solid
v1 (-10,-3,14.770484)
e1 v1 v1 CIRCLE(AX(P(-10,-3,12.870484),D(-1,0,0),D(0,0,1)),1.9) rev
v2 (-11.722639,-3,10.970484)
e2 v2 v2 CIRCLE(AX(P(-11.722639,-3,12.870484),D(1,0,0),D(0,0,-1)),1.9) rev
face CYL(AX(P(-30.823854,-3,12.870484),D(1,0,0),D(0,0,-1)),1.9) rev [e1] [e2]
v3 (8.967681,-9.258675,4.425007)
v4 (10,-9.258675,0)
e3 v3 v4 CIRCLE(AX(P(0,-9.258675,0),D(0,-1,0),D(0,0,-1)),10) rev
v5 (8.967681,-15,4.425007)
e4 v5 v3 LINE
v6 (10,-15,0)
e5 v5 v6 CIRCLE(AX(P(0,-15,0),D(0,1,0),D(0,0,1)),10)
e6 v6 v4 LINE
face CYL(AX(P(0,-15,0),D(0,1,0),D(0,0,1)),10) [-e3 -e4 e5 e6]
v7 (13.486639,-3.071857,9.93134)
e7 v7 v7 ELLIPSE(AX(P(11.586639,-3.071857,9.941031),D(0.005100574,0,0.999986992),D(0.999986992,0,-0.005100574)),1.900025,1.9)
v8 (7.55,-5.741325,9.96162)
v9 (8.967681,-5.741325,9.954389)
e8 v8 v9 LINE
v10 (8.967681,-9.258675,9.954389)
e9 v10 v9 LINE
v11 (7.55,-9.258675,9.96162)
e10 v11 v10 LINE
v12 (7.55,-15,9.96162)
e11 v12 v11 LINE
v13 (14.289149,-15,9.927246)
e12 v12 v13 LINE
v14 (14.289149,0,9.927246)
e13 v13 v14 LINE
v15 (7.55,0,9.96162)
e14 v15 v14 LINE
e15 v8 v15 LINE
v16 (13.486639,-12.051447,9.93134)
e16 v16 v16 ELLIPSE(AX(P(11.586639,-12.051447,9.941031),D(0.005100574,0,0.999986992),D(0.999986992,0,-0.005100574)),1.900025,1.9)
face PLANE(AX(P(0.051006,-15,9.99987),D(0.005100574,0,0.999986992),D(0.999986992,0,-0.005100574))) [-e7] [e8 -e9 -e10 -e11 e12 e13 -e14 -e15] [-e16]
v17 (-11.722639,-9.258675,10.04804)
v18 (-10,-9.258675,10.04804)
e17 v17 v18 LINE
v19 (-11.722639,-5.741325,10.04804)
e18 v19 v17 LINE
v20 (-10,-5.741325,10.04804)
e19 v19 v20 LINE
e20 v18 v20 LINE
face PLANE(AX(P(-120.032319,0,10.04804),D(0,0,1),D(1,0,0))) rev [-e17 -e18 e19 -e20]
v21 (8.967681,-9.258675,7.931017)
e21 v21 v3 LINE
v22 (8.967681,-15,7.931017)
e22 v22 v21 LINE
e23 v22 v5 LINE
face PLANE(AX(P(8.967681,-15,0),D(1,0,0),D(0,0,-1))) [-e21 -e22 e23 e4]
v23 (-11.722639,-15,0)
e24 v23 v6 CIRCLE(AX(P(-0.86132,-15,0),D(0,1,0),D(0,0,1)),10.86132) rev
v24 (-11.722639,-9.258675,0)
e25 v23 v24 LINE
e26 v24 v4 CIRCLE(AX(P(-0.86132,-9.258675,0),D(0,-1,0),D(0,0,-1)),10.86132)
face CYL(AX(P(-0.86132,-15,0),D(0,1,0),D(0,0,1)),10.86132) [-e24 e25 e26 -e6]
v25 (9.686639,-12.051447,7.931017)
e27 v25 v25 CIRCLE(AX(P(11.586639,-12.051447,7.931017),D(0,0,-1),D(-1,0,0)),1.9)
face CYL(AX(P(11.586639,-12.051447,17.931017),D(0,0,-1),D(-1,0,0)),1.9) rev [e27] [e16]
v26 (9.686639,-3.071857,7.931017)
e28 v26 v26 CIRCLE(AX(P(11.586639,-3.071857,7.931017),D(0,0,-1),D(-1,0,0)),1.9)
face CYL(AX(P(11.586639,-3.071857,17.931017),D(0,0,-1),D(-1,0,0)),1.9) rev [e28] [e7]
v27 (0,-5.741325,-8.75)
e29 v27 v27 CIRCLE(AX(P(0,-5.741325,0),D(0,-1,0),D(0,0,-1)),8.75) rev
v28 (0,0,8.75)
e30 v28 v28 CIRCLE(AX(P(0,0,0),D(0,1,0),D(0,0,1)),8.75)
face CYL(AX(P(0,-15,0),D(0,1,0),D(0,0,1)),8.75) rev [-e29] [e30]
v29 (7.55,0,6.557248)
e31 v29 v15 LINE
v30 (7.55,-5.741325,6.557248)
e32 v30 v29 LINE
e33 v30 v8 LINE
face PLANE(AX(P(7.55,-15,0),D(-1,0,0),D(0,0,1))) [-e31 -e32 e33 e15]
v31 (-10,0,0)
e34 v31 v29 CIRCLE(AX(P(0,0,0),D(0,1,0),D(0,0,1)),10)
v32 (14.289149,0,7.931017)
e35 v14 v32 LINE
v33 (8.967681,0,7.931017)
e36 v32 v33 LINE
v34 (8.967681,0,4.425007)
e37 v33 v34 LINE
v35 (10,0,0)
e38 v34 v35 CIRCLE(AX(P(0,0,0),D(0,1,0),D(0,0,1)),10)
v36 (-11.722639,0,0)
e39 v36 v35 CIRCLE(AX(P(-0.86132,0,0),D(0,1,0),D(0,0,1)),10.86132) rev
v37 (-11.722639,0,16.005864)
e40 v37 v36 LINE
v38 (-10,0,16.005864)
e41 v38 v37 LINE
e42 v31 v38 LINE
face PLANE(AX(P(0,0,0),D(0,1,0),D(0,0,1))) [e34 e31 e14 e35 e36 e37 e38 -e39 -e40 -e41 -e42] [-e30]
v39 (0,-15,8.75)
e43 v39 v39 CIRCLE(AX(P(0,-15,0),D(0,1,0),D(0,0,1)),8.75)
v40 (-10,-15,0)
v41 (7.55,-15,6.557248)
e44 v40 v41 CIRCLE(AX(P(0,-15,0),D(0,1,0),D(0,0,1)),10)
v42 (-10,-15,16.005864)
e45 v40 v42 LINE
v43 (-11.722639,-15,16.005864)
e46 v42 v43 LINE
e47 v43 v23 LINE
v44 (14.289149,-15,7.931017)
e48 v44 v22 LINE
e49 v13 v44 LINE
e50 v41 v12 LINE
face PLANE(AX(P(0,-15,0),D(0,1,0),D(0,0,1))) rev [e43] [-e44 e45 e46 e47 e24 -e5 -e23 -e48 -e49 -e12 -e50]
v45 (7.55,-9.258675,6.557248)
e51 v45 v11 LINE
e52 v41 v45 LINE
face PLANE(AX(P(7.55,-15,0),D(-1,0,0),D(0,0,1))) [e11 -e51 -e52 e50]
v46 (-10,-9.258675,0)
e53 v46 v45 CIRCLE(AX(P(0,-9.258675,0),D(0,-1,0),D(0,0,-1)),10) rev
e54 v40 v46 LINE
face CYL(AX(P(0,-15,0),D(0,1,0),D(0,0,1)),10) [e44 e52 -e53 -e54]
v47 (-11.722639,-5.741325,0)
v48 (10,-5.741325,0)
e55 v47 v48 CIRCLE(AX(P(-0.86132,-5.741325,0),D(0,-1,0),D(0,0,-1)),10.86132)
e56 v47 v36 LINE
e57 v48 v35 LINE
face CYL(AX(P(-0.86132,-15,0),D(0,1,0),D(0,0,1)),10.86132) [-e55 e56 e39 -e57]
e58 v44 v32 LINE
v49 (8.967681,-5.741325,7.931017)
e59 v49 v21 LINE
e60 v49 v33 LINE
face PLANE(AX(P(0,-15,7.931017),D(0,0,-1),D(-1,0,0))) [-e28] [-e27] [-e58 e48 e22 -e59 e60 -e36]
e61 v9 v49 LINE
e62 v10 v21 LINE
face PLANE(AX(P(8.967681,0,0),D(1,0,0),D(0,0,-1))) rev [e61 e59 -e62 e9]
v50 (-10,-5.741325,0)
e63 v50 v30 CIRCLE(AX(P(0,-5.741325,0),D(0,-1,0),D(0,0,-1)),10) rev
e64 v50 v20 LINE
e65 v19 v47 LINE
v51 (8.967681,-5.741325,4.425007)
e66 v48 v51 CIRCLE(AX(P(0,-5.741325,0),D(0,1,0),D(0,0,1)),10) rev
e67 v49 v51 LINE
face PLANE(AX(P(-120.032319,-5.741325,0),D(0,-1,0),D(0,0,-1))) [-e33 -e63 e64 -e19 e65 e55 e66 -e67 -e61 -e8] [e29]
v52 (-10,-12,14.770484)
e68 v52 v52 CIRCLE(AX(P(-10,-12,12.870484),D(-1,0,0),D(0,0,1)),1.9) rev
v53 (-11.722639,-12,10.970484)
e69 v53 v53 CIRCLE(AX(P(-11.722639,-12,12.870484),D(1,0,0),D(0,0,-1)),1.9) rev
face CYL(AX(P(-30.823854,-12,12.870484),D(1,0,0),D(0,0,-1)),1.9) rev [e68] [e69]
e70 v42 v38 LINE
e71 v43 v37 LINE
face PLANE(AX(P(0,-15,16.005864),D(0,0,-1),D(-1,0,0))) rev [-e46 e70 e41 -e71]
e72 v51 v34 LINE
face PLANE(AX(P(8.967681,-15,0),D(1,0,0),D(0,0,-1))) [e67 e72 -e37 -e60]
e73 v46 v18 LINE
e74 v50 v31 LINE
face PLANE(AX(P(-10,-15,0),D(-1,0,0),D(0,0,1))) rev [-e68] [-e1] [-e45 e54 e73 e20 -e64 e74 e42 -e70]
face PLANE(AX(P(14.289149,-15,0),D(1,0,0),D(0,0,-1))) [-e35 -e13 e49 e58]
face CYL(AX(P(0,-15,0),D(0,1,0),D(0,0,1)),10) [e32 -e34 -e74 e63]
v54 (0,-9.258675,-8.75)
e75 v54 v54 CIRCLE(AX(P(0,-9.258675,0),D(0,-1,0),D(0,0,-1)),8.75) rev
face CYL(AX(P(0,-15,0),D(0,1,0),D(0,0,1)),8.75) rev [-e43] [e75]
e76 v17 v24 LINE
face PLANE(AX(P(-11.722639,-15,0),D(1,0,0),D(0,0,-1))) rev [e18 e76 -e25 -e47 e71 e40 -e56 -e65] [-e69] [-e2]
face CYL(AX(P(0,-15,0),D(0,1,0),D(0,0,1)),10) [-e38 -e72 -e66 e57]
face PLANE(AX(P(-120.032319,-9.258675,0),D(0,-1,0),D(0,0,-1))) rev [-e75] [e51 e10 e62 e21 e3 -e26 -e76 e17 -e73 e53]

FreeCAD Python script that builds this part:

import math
import FreeCAD as App
import Part
import Sketcher

V = App.Vector

doc = App.newDocument("Part")
body = doc.addObject("PartDesign::Body", "Body")

sketch1 = body.newObject("Sketcher::SketchObject", "Sketch")
sketch1.AttachmentSupport = (doc.getObject("XZ_Plane"), [""])
sketch1.MapMode = "FlatFace"
sketch1.addGeometry([
    Part.LineSegment(V(7.5, 6.6, 0), V(7.5, 10, 0)),
    Part.LineSegment(V(7.5, 10, 0), V(14.3, 9.9, 0)),
    Part.LineSegment(V(14.3, 9.9, 0), V(14.3, 7.9, 0)),
    Part.LineSegment(V(14.3, 7.9, 0), V(9, 7.9, 0)),
    Part.LineSegment(V(9, 7.9, 0), V(9, 4.4, 0)),
    Part.ArcOfCircle(Part.Circle(V(0, 0, 0), V(0, 0, 1), 10), math.radians(0), math.radians(26)),
    Part.ArcOfCircle(Part.Circle(V(-0.9, 0, 0), V(0, 0, 1), 10.9), math.radians(-180), math.radians(0)),
    Part.LineSegment(V(-11.7, 0, 0), V(-11.7, 16, 0)),
    Part.LineSegment(V(-11.7, 16, 0), V(-10, 16, 0)),
    Part.LineSegment(V(-10, 16, 0), V(-10, 0, 0)),
    Part.ArcOfCircle(Part.Circle(V(0, 0, 0), V(0, 0, 1), 10), math.radians(41), math.radians(180)),
    Part.Circle(V(0, 0, 0), V(0, 0, 1), 8.8),
], False)
sketch1.addConstraint([
    Sketcher.Constraint("Coincident", 0, 2, 1, 1),
    Sketcher.Constraint("Coincident", 1, 2, 2, 1),
    Sketcher.Constraint("Coincident", 2, 2, 3, 1),
    Sketcher.Constraint("Coincident", 3, 2, 4, 1),
    Sketcher.Constraint("Coincident", 4, 2, 5, 2),
    Sketcher.Constraint("Tangent", 5, 1, 6, 2),
    Sketcher.Constraint("Tangent", 6, 1, 7, 1),
    Sketcher.Constraint("Coincident", 7, 2, 8, 1),
    Sketcher.Constraint("Coincident", 8, 2, 9, 1),
    Sketcher.Constraint("Tangent", 9, 2, 10, 2),
    Sketcher.Constraint("Coincident", 10, 1, 0, 1),
    Sketcher.Constraint("Vertical", 0),
    Sketcher.Constraint("Vertical", 2),
    Sketcher.Constraint("Horizontal", 3),
    Sketcher.Constraint("Vertical", 4),
    Sketcher.Constraint("Vertical", 7),
    Sketcher.Constraint("Horizontal", 8),
    Sketcher.Constraint("Vertical", 9),
    Sketcher.Constraint("Coincident", 5, 3, -1, 1),
    Sketcher.Constraint("Coincident", 10, 3, -1, 1),
    Sketcher.Constraint("Coincident", 11, 3, -1, 1),
    Sketcher.Constraint("Equal", 5, 10),
    Sketcher.Constraint("PointOnObject", 6, 3, -1),
    Sketcher.Constraint("Radius", 5, 10.0),
    Sketcher.Constraint("Diameter", 11, 17.5),
    Sketcher.Constraint("DistanceX", -1, 1, 0, 2, 7.55),
    Sketcher.Constraint("Radius", 6, 10.86132),
    Sketcher.Constraint("DistanceY", 2, 2, 2, 1, 1.996229),
    Sketcher.Constraint("DistanceY", 4, 2, 4, 1, 3.506009),
    Sketcher.Constraint("DistanceX", 3, 2, 3, 1, 5.321468),
    Sketcher.Constraint("DistanceY", 0, 1, 0, 2, 3.404372),
    Sketcher.Constraint("DistanceY", 7, 1, 7, 2, 16.005864),
    Sketcher.Constraint("DistanceX", -1, 1, 1, 2, 14.289149),
])
pad1 = body.newObject("PartDesign::Pad", "Pad")
pad1.Profile = sketch1
pad1.Length = 15

sketch2 = body.newObject("Sketcher::SketchObject", "Sketch001")
sketch2.AttachmentSupport = (doc.getObject("YZ_Plane"), [""])
sketch2.MapMode = "FlatFace"
sketch2.AttachmentOffset = App.Placement(V(0, 0, -10.823854), App.Rotation())
sketch2.addGeometry([
    Part.Circle(V(-12, 12.9, 0), V(0, 0, 1), 1.9),
    Part.Circle(V(-3, 12.9, 0), V(0, 0, 1), 1.9),
], False)
sketch2.addConstraint([
    Sketcher.Constraint("Equal", 0, 1),
    Sketcher.Constraint("Horizontal", 0, 3, 1, 3),
    Sketcher.Constraint("Diameter", 0, 3.8),
    Sketcher.Constraint("DistanceX", 0, 3, -1, 1, 12.0),
    Sketcher.Constraint("DistanceX", 1, 3, -1, 1, 3.0),
    Sketcher.Constraint("DistanceY", -1, 1, 0, 3, 12.870484),
])
pocket1 = body.newObject("PartDesign::Pocket", "Pocket")
pocket1.Profile = sketch2
pocket1.Length = 40
pocket1.Midplane = True

sketch3 = body.newObject("Sketcher::SketchObject", "Sketch002")
sketch3.AttachmentSupport = (doc.getObject("XY_Plane"), [""])
sketch3.MapMode = "FlatFace"
sketch3.AttachmentOffset = App.Placement(V(0, 0, 7.931017), App.Rotation())
sketch3.addGeometry([
    Part.Circle(V(11.6, -12.1, 0), V(0, 0, 1), 1.9),
    Part.Circle(V(11.6, -3.1, 0), V(0, 0, 1), 1.9),
], False)
sketch3.addConstraint([
    Sketcher.Constraint("Equal", 0, 1),
    Sketcher.Constraint("Vertical", 0, 3, 1, 3),
    Sketcher.Constraint("Diameter", 0, 3.8),
    Sketcher.Constraint("DistanceX", -1, 1, 0, 3, 11.586639),
    Sketcher.Constraint("DistanceY", 0, 3, 1, 3, 8.97959),
    Sketcher.Constraint("DistanceY", 0, 3, -1, 1, 12.051447),
])
pocket2 = body.newObject("PartDesign::Pocket", "Pocket001")
pocket2.Profile = sketch3
pocket2.Length = 10
pocket2.Reversed = True

sketch4 = body.newObject("Sketcher::SketchObject", "Sketch003")
sketch4.AttachmentSupport = (doc.getObject("YZ_Plane"), [""])
sketch4.MapMode = "FlatFace"
sketch4.AttachmentOffset = App.Placement(V(0, 0, 8.967681), App.Rotation())
sketch4.addGeometry([
    Part.LineSegment(V(-9.3, -20.2, 0), V(-5.7, -20.2, 0)),
    Part.LineSegment(V(-5.7, -20.2, 0), V(-5.7, 10, 0)),
    Part.LineSegment(V(-5.7, 10, 0), V(-9.3, 10, 0)),
    Part.LineSegment(V(-9.3, 10, 0), V(-9.3, -20.2, 0)),
], False)
sketch4.addConstraint([
    Sketcher.Constraint("Coincident", 0, 2, 1, 1),
    Sketcher.Constraint("Coincident", 1, 2, 2, 1),
    Sketcher.Constraint("Coincident", 2, 2, 3, 1),
    Sketcher.Constraint("Coincident", 3, 2, 0, 1),
    Sketcher.Constraint("Horizontal", 0),
    Sketcher.Constraint("Vertical", 1),
    Sketcher.Constraint("Horizontal", 2),
    Sketcher.Constraint("Vertical", 3),
    Sketcher.Constraint("DistanceX", 0, 1, 0, 2, 3.517349),
    Sketcher.Constraint("DistanceY", 1, 1, 1, 2, 30.22355),
    Sketcher.Constraint("DistanceY", 0, 2, -1, 1, 20.17551),
    Sketcher.Constraint("DistanceX", 0, 2, -1, 1, 5.741325),
])
pocket3 = body.newObject("PartDesign::Pocket", "Pocket002")
pocket3.Profile = sketch4
pocket3.Length = 129

sketch5 = body.newObject("Sketcher::SketchObject", "Sketch004")
sketch5.AttachmentSupport = (doc.getObject("YZ_Plane"), [""])
sketch5.MapMode = "FlatFace"
sketch5.AttachmentOffset = App.Placement(V(0, 0, -10), App.Rotation())
sketch5.addGeometry([
    Part.LineSegment(V(-5.7, 6.2, 0), V(-9.3, 6.2, 0)),
    Part.LineSegment(V(-9.3, 6.2, 0), V(-9.3, -8.7, 0)),
    Part.LineSegment(V(-9.3, -8.7, 0), V(-5.7, -8.7, 0)),
    Part.LineSegment(V(-5.7, -8.7, 0), V(-5.7, 6.2, 0)),
], False)
sketch5.addConstraint([
    Sketcher.Constraint("Coincident", 0, 2, 1, 1),
    Sketcher.Constraint("Coincident", 1, 2, 2, 1),
    Sketcher.Constraint("Coincident", 2, 2, 3, 1),
    Sketcher.Constraint("Coincident", 3, 2, 0, 1),
    Sketcher.Constraint("Horizontal", 0),
    Sketcher.Constraint("Vertical", 1),
    Sketcher.Constraint("Horizontal", 2),
    Sketcher.Constraint("Vertical", 3),
    Sketcher.Constraint("DistanceY", 1, 2, -1, 1, 8.75),
    Sketcher.Constraint("DistanceX", 0, 2, 0, 1, 3.517349),
    Sketcher.Constraint("DistanceY", 1, 2, 1, 1, 14.928012),
    Sketcher.Constraint("DistanceX", 0, 2, -1, 1, 9.258675),
])
pocket4 = body.newObject("PartDesign::Pocket", "Pocket003")
pocket4.Profile = sketch5
pocket4.Length = 79
pocket4.Midplane = True

doc.recompute()
